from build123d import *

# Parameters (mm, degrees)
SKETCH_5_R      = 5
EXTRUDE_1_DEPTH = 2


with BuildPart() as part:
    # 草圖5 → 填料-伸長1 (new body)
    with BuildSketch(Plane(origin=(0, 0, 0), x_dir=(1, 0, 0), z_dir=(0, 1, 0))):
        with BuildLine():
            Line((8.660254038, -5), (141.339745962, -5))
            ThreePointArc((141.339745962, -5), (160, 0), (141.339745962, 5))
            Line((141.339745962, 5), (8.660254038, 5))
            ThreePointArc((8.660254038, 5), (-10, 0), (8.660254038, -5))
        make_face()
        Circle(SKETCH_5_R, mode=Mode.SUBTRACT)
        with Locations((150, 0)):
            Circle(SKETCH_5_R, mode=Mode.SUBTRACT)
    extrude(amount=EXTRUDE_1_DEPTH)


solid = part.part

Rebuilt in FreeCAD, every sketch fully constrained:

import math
import FreeCAD as App
import Part
import Sketcher
from FreeCAD import Vector
Q = App.Units.Quantity

doc = App.newDocument("Part")
body = doc.addObject("PartDesign::Body", "Body")

sketch1 = body.newObject("Sketcher::SketchObject", "Sketch")
sketch1.AttachmentSupport = (doc.getObject("XZ_Plane"), [""])
sketch1.MapMode = "FlatFace"
sketch1.addGeometry([
    Part.LineSegment(Vector(9, 5, 0), Vector(141, 5, 0)),
    Part.ArcOfCircle(Part.Circle(Vector(150, 0, 0), Vector(0, 0, 1), 10), math.radians(-150), math.radians(150)),
    Part.LineSegment(Vector(141, -5, 0), Vector(9, -5, 0)),
    Part.ArcOfCircle(Part.Circle(Vector(0, 0, 0), Vector(0, 0, 1), 10), math.radians(30), math.radians(330)),
    Part.Circle(Vector(0, 0, 0), Vector(0, 0, 1), 5),
    Part.Circle(Vector(150, 0, 0), Vector(0, 0, 1), 5),
], False)
sketch1.addConstraint([
    Sketcher.Constraint("Coincident", 0, 2, 1, 2),
    Sketcher.Constraint("Coincident", 1, 1, 2, 1),
    Sketcher.Constraint("Coincident", 2, 2, 3, 2),
    Sketcher.Constraint("Coincident", 3, 1, 0, 1),
    Sketcher.Constraint("Horizontal", 0),
    Sketcher.Constraint("Horizontal", 2),
    Sketcher.Constraint("Coincident", 3, 3, -1, 1),
    Sketcher.Constraint("Coincident", 4, 3, -1, 1),
    Sketcher.Constraint("Coincident", 5, 3, 1, 3),
    Sketcher.Constraint("Equal", 1, 3),
    Sketcher.Constraint("Equal", 4, 5),
    Sketcher.Constraint("Symmetric", 0, 2, 1, 1, -1),
    Sketcher.Constraint("Diameter", 4, Q("10 mm")),
    Sketcher.Constraint("Radius", 1, Q("10 mm")),
    Sketcher.Constraint("DistanceX", -1, 1, 1, 3, Q("150 mm")),
    Sketcher.Constraint("DistanceY", -1, 1, 0, 2, Q("5 mm")),
])
pad1 = body.newObject("PartDesign::Pad", "Pad")
pad1.Profile = sketch1
pad1.Length = 2
pad1.Reversed = True

doc.recompute()
